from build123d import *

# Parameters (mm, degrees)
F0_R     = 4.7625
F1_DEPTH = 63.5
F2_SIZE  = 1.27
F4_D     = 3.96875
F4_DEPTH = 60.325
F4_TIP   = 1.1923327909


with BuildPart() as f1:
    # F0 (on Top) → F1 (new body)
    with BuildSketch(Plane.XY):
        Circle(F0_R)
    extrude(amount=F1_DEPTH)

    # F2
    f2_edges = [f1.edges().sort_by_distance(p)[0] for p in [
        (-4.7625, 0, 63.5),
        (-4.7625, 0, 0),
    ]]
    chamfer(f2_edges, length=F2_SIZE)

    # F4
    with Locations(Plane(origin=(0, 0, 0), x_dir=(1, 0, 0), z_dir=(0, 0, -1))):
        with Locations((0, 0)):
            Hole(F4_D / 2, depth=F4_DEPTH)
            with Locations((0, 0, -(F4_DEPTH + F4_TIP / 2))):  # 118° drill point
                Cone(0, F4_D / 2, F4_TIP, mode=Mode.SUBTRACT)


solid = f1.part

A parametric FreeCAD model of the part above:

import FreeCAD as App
import Part
import Sketcher
from FreeCAD import Vector
Q = App.Units.Quantity


def edges_at(feature, points):
    """Names of the edges that pass closest to the given points."""
    edges = feature.Shape.Edges
    near = lambda p: min(range(len(edges)), key=lambda i: edges[i].distToShape(Part.Vertex(*p))[0])
    return sorted({f"Edge{near(p) + 1}" for p in points})

doc = App.newDocument("Part")
params = doc.addObject("Spreadsheet::Sheet", "Params")
for row, (alias, value) in enumerate([
    ("sketch1_diameter", "0.375 in"),
    ("pad1_length", "2.5 in"),
    ("chamfer_size", "0.05 in"),
    ("sketch2_diameter", "0.15625 in"),
    ("hole_diameter", "0.15625 in"),
    ("hole_depth", "2.375 in"),
], start=1):
    params.set(f"A{row}", alias)
    params.set(f"B{row}", "=" + value)
    params.setAlias(f"B{row}", alias)

body = doc.addObject("PartDesign::Body", "Body")

# Sketch on XY plane
sketch1 = body.newObject("Sketcher::SketchObject", "Sketch")
sketch1.AttachmentSupport = (doc.getObject("XY_Plane"), [""])
sketch1.MapMode = "FlatFace"
sketch1.addGeometry(Part.Circle(Vector(0, 0, 0), Vector(0, 0, 1), 4.8), False)
sketch1.addConstraint(Sketcher.Constraint("Coincident", 0, 3, -1, 1))
sketch1.addConstraint(Sketcher.Constraint("Diameter", 0, Q("0.375 in")))
sketch1.setExpression("Constraints[1]", "Params.sketch1_diameter")
pad1 = body.newObject("PartDesign::Pad", "Pad")
pad1.Profile = sketch1
pad1.setExpression("Length", "Params.pad1_length")
doc.recompute()

chamfer = body.newObject("PartDesign::Chamfer", "Chamfer")
chamfer.Base = (pad1, edges_at(pad1, [(-4.763, 0, 63.5), (-4.763, 0, 0)]))
chamfer.setExpression("Size", "Params.chamfer_size")

# Sketch on XY plane
sketch2 = body.newObject("Sketcher::SketchObject", "Sketch001")
sketch2.AttachmentSupport = (doc.getObject("XY_Plane"), [""])
sketch2.MapMode = "FlatFace"
sketch2.addGeometry(Part.Circle(Vector(0, 0, 0), Vector(0, 0, 1), 2), False)
sketch2.addConstraint(Sketcher.Constraint("Coincident", 0, 3, -1, 1))
sketch2.addConstraint(Sketcher.Constraint("Diameter", 0, Q("0.15625 in")))
sketch2.setExpression("Constraints[1]", "Params.sketch2_diameter")
doc.recompute()
hole = body.newObject("PartDesign::Hole", "Hole")
hole.Profile = sketch2
hole.ThreadType = "None"
hole.setExpression("Diameter", "Params.hole_diameter")
hole.DepthType = "Dimension"
hole.setExpression("Depth", "Params.hole_depth")
hole.DrillPoint = "Angled"
hole.DrillPointAngle = 118
hole.Reversed = True

doc.recompute()
